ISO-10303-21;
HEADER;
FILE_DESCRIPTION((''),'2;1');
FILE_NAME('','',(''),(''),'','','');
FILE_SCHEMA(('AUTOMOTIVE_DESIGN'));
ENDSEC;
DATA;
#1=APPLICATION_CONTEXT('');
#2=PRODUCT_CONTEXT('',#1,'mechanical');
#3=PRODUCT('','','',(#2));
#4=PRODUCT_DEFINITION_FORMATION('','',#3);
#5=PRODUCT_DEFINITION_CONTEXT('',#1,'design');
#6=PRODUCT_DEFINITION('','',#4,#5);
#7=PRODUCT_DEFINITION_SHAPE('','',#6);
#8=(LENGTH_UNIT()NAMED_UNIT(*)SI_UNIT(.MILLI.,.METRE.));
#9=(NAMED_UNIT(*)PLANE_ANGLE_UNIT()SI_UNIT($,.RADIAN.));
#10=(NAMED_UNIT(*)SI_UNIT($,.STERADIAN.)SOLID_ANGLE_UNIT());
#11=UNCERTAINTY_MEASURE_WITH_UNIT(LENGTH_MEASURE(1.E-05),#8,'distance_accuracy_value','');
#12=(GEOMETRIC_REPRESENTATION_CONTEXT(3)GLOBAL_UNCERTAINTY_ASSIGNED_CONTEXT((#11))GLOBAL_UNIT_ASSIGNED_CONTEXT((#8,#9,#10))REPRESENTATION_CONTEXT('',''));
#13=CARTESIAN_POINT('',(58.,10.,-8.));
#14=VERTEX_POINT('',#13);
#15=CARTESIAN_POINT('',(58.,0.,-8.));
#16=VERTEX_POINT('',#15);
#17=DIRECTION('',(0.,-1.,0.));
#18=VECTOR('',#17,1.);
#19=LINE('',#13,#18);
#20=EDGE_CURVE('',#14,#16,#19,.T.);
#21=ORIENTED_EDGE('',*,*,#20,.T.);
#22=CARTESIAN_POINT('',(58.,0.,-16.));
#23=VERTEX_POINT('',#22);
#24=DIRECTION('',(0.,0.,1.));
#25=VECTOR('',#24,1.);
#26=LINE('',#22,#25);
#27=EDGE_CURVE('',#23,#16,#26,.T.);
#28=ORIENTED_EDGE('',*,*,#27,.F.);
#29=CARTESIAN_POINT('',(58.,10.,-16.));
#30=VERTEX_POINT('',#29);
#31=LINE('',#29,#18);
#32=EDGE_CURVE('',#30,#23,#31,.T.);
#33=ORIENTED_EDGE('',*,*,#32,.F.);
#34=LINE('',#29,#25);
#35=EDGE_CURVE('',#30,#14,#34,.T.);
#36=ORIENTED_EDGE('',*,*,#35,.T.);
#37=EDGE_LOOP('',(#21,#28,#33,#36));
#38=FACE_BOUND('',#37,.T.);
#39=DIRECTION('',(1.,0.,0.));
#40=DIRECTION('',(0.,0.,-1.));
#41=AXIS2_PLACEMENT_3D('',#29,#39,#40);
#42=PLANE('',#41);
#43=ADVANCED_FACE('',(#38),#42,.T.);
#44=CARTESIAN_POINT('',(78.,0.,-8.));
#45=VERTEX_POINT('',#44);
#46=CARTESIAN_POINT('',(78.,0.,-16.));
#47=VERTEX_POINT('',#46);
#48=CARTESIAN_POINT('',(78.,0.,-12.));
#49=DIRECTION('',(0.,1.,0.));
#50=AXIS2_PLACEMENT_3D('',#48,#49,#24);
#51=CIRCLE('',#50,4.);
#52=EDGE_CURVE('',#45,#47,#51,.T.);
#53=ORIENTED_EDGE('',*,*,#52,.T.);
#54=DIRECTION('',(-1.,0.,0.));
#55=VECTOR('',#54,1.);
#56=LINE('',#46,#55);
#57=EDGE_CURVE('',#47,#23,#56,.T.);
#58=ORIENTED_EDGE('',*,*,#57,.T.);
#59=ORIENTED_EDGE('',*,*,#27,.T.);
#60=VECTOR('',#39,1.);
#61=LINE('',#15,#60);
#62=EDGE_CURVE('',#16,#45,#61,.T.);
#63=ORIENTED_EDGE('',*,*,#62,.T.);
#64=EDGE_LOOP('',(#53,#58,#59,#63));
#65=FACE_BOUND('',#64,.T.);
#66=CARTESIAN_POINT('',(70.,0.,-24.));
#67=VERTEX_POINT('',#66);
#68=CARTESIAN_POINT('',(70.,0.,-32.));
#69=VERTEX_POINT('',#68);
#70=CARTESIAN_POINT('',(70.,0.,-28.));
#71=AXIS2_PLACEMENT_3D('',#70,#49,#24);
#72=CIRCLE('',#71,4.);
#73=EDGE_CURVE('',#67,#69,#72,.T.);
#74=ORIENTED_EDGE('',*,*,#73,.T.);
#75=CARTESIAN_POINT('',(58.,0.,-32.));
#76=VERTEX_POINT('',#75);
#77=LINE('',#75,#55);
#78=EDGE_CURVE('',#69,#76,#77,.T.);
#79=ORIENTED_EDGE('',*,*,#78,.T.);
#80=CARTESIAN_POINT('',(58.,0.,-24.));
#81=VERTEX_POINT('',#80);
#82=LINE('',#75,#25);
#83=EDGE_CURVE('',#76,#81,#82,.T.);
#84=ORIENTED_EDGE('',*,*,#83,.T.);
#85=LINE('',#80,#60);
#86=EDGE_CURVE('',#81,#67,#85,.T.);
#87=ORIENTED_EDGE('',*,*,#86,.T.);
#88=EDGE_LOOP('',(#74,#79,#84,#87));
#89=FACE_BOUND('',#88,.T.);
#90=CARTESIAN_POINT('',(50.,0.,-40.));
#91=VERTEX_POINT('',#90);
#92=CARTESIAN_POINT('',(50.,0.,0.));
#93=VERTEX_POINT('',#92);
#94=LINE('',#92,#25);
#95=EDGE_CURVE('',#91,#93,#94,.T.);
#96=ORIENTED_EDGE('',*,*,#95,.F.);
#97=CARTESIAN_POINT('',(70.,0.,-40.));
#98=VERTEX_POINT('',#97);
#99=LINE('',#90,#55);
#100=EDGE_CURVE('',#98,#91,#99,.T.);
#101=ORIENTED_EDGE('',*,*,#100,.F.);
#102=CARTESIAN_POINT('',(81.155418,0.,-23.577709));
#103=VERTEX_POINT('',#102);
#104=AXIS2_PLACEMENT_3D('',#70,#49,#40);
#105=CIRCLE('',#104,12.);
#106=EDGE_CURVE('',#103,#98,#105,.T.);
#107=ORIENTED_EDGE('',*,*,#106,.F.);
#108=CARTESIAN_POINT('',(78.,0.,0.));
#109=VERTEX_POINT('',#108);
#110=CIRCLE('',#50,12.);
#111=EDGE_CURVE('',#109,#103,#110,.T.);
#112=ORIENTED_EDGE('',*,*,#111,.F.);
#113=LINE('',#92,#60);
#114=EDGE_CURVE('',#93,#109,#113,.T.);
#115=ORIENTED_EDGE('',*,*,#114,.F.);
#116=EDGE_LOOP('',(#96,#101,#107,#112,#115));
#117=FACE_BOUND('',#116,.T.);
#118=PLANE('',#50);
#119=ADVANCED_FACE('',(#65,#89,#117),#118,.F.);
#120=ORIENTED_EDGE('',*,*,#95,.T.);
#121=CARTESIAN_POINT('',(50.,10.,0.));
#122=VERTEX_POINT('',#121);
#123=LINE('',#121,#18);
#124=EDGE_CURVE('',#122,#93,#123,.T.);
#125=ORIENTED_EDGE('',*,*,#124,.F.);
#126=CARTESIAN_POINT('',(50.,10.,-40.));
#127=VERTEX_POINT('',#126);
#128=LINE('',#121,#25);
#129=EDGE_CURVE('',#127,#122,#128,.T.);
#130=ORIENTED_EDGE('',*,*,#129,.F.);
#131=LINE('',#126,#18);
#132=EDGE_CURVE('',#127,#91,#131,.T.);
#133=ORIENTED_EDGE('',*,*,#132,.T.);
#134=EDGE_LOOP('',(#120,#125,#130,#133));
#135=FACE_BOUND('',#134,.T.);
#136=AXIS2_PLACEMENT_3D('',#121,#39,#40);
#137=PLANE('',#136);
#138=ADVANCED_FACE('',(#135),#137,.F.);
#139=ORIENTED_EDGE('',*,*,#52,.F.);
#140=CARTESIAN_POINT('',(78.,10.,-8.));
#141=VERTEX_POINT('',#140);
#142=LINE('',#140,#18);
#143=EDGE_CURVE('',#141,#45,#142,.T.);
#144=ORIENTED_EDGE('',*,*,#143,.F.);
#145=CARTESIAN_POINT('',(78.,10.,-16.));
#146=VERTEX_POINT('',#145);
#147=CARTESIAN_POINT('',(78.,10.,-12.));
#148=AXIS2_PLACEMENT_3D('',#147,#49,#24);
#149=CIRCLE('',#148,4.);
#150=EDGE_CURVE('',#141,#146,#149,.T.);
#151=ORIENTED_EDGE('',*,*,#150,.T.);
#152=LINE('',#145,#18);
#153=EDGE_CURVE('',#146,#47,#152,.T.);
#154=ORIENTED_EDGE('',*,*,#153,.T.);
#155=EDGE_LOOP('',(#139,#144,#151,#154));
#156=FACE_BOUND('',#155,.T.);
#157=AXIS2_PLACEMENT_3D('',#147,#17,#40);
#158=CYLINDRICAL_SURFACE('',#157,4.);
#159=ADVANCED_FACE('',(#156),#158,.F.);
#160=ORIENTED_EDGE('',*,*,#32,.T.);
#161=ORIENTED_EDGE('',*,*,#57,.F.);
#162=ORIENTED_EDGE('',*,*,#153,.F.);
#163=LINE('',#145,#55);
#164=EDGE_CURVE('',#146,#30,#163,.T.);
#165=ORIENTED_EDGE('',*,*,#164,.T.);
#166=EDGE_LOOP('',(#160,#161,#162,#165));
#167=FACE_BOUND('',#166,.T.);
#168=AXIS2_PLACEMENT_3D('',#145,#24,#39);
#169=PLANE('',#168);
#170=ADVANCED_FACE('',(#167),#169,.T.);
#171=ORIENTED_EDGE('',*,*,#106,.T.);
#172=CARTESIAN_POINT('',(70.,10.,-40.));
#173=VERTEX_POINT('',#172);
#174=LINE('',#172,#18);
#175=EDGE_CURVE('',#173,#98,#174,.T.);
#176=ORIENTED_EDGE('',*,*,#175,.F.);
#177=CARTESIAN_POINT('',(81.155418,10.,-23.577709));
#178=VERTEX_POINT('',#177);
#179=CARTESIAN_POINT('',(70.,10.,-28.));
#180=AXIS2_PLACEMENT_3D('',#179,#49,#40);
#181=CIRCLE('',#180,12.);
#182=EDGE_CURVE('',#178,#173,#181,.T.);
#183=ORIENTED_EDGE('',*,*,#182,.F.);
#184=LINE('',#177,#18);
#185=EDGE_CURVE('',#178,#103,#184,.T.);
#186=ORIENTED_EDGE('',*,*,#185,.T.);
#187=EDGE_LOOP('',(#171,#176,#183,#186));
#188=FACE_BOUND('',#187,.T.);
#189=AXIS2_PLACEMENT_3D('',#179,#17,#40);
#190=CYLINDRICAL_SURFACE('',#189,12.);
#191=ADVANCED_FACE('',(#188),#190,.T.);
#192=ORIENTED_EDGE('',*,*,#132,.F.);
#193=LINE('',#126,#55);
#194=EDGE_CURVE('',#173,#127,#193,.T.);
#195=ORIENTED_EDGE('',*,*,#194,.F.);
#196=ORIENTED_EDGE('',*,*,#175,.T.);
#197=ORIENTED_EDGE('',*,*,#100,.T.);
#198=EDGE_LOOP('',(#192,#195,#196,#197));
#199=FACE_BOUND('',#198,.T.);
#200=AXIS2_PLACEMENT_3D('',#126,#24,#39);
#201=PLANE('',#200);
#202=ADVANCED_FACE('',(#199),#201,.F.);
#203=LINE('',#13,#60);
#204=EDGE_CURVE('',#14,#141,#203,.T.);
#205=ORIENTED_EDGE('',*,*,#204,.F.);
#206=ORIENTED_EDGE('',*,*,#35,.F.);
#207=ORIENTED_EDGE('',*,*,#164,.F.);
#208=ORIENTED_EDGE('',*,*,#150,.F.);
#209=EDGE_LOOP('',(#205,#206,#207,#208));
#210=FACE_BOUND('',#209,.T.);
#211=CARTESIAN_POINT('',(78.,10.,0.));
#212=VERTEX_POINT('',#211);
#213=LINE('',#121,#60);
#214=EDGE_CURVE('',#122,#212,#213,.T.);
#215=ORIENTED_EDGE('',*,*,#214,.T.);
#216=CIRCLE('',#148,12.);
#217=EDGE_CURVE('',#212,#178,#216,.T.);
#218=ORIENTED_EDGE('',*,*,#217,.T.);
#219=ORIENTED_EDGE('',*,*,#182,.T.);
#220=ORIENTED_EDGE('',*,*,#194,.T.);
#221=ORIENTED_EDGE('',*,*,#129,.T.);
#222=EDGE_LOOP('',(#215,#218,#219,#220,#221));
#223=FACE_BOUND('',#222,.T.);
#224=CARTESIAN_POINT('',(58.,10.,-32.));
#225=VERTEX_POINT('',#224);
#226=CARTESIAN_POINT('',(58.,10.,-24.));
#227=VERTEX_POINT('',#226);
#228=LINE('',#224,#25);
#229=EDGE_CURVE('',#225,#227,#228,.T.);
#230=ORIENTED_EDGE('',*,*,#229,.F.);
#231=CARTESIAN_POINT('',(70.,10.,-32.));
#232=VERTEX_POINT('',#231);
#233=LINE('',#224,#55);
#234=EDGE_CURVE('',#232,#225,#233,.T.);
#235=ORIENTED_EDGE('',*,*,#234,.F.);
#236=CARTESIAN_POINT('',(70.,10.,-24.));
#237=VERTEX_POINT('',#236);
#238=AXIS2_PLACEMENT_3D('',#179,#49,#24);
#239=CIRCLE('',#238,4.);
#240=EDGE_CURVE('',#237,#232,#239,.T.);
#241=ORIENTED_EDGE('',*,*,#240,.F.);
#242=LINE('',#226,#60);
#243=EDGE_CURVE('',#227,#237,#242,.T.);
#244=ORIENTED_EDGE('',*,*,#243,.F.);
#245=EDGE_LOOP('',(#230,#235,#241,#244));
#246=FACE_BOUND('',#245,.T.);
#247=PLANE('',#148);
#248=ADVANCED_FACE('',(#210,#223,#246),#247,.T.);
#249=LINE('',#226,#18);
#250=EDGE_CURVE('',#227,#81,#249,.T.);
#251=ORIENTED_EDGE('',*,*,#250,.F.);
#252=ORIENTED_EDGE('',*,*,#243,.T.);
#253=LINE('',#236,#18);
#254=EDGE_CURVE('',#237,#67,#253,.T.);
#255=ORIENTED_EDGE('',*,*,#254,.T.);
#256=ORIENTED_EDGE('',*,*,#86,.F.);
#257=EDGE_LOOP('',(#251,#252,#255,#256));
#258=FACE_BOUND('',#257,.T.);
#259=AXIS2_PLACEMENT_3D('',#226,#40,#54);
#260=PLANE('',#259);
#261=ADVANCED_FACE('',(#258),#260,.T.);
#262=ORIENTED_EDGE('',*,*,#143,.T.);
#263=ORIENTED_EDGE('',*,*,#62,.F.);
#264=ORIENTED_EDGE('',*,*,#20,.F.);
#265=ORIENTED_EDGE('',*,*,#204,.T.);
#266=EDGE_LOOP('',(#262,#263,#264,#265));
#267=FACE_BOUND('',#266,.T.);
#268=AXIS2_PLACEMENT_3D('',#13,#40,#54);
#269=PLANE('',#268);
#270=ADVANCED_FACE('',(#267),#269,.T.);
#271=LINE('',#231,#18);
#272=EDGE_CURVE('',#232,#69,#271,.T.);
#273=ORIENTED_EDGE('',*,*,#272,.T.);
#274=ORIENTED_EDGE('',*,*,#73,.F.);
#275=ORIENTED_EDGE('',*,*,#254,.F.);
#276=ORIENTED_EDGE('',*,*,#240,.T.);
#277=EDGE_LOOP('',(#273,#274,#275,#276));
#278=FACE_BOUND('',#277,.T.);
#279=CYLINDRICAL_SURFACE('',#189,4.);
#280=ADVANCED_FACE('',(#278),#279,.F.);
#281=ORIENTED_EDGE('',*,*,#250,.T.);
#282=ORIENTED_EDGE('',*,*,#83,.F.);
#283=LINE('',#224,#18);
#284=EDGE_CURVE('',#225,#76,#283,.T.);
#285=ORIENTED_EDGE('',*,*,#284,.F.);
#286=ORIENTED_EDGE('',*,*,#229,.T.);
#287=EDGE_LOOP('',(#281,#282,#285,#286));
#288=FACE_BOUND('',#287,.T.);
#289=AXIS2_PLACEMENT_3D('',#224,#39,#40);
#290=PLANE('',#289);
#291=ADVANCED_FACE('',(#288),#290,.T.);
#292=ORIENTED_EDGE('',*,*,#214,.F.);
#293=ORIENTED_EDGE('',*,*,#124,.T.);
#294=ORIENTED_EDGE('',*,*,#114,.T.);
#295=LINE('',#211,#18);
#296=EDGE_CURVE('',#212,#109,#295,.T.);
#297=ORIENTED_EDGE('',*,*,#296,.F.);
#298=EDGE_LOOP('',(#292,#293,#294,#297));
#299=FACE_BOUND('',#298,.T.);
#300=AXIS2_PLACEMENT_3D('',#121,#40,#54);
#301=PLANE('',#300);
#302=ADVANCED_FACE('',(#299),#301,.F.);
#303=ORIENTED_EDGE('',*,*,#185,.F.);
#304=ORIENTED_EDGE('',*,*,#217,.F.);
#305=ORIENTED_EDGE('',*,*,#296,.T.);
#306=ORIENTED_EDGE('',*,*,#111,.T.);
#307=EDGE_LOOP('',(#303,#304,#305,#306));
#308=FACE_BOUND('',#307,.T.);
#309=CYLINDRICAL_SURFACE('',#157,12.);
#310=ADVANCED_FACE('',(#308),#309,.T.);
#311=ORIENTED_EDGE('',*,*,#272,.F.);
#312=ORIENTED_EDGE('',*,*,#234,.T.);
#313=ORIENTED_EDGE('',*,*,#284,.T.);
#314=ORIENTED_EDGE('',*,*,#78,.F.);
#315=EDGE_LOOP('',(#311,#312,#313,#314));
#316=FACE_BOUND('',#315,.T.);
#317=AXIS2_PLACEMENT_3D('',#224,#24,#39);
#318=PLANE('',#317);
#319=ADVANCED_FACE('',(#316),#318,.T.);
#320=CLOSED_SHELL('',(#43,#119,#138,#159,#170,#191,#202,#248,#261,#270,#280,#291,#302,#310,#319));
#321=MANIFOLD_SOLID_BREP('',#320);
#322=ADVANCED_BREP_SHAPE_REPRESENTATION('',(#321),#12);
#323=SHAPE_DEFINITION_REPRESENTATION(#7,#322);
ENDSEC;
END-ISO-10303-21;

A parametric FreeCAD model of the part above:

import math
import FreeCAD as App
import Part
import Sketcher
Q = App.Units.Quantity

doc = App.newDocument("Part")
body = doc.addObject("PartDesign::Body", "Body")

sketch1 = body.newObject("Sketcher::SketchObject", "Sketch")
sketch1.AttachmentSupport = (doc.getObject("XZ_Plane"), [""])
sketch1.MapMode = "FlatFace"
sketch1.addGeometry([
    Part.LineSegment(App.Vector(50, -40, 0), App.Vector(50, 0, 0)),
    Part.LineSegment(App.Vector(50, 0, 0), App.Vector(78, 0, 0)),
    Part.ArcOfCircle(Part.Circle(App.Vector(78, -12, 0), App.Vector(0, 0, 1), 12), math.radians(-75), math.radians(90)),
    Part.ArcOfCircle(Part.Circle(App.Vector(70, -28, 0), App.Vector(0, 0, 1), 12), math.radians(-90), math.radians(22)),
    Part.LineSegment(App.Vector(70, -40, 0), App.Vector(50, -40, 0)),
    Part.LineSegment(App.Vector(58, -8, 0), App.Vector(58, -16, 0)),
    Part.LineSegment(App.Vector(58, -16, 0), App.Vector(78, -16, 0)),
    Part.ArcOfCircle(Part.Circle(App.Vector(78, -12, 0), App.Vector(0, 0, 1), 4), math.radians(-90), math.radians(90)),
    Part.LineSegment(App.Vector(78, -8, 0), App.Vector(58, -8, 0)),
    Part.LineSegment(App.Vector(58, -32, 0), App.Vector(70, -32, 0)),
    Part.ArcOfCircle(Part.Circle(App.Vector(70, -28, 0), App.Vector(0, 0, 1), 4), math.radians(-90), math.radians(90)),
    Part.LineSegment(App.Vector(70, -24, 0), App.Vector(58, -24, 0)),
    Part.LineSegment(App.Vector(58, -24, 0), App.Vector(58, -32, 0)),
], False)
sketch1.addConstraint([
    Sketcher.Constraint("Coincident", 0, 2, 1, 1),
    Sketcher.Constraint("Tangent", 1, 2, 2, 2),
    Sketcher.Constraint("Coincident", 2, 1, 3, 2),
    Sketcher.Constraint("Tangent", 3, 1, 4, 1),
    Sketcher.Constraint("Coincident", 4, 2, 0, 1),
    Sketcher.Constraint("Coincident", 5, 2, 6, 1),
    Sketcher.Constraint("Tangent", 6, 2, 7, 1),
    Sketcher.Constraint("Tangent", 7, 2, 8, 1),
    Sketcher.Constraint("Coincident", 8, 2, 5, 1),
    Sketcher.Constraint("Tangent", 9, 2, 10, 1),
    Sketcher.Constraint("Tangent", 10, 2, 11, 1),
    Sketcher.Constraint("Coincident", 11, 2, 12, 1),
    Sketcher.Constraint("Coincident", 12, 2, 9, 1),
    Sketcher.Constraint("Vertical", 0),
    Sketcher.Constraint("Horizontal", 1),
    Sketcher.Constraint("Horizontal", 4),
    Sketcher.Constraint("Vertical", 5),
    Sketcher.Constraint("Horizontal", 6),
    Sketcher.Constraint("Horizontal", 8),
    Sketcher.Constraint("Horizontal", 9),
    Sketcher.Constraint("Horizontal", 11),
    Sketcher.Constraint("Vertical", 12),
    Sketcher.Constraint("Coincident", 7, 3, 2, 3),
    Sketcher.Constraint("Coincident", 10, 3, 3, 3),
    Sketcher.Constraint("Equal", 2, 3),
    Sketcher.Constraint("Equal", 7, 10),
    Sketcher.Constraint("PointOnObject", 0, 2, -1),
    Sketcher.Constraint("Vertical", 8, 2, 11, 2),
    Sketcher.Constraint("Equal", 4, 6),
    Sketcher.Constraint("Radius", 2, Q("12 mm")),
    Sketcher.Constraint("Radius", 7, Q("4 mm")),
    Sketcher.Constraint("DistanceX", 1, 1, 1, 2, Q("28 mm")),
    Sketcher.Constraint("DistanceX", 4, 2, 4, 1, Q("20 mm")),
    Sketcher.Constraint("DistanceY", 0, 1, 0, 2, Q("40 mm")),
    Sketcher.Constraint("DistanceX", -1, 1, 2, 3, Q("78 mm")),
])
pad1 = body.newObject("PartDesign::Pad", "Pad")
pad1.Profile = sketch1
pad1.Length = 10
pad1.Reversed = True

doc.recompute()
